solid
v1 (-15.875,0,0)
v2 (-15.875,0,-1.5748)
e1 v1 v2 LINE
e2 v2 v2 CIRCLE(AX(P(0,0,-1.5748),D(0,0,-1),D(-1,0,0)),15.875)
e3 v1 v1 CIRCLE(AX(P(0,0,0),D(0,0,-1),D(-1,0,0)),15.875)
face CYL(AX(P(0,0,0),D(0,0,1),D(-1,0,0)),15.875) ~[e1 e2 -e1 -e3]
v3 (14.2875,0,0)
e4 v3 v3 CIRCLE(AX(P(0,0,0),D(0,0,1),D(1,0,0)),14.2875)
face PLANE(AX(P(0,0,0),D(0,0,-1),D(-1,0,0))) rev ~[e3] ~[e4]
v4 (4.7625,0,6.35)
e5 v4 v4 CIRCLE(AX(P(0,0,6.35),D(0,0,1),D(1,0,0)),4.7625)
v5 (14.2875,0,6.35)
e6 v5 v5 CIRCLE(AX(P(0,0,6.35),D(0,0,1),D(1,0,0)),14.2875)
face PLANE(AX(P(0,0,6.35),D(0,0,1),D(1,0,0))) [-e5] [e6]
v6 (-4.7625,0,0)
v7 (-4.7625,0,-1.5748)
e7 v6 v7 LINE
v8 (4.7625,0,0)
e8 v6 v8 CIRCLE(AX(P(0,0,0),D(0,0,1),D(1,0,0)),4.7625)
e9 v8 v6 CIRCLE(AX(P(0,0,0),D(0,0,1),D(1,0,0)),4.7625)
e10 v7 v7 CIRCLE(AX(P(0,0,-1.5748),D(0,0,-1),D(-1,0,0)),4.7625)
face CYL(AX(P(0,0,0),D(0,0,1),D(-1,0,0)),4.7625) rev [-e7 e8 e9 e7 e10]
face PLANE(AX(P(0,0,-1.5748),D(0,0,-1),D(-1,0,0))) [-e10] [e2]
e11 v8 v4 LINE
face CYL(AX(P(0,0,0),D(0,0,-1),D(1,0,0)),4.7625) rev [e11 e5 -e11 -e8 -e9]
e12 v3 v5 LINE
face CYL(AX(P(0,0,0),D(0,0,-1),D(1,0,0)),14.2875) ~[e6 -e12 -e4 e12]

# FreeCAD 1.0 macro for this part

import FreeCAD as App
import Part
import Sketcher

V = App.Vector
Q = App.Units.Quantity

doc = App.newDocument("Part")
body = doc.addObject("PartDesign::Body", "Body")

# Sketch on XY plane
sketch1 = body.newObject("Sketcher::SketchObject", "Sketch")
sketch1.AttachmentSupport = (doc.getObject("XY_Plane"), [""])
sketch1.MapMode = "FlatFace"
sketch1.addGeometry([
    Part.Circle(V(0, 0, 0), V(0, 0, 1), 14.3),
    Part.Circle(V(0, 0, 0), V(0, 0, 1), 4.8),
], False)
sketch1.addConstraint([
    Sketcher.Constraint("Coincident", 0, 3, -1, 1),
    Sketcher.Constraint("Coincident", 1, 3, -1, 1),
    Sketcher.Constraint("Diameter", 0, Q("1.125 in")),
    Sketcher.Constraint("Diameter", 1, Q("0.375 in")),
])
pad1 = body.newObject("PartDesign::Pad", "Pad")
pad1.Profile = sketch1
pad1.Length = Q("0.25 in")

# Sketch on XY plane
sketch2 = body.newObject("Sketcher::SketchObject", "Sketch001")
sketch2.AttachmentSupport = (doc.getObject("XY_Plane"), [""])
sketch2.MapMode = "FlatFace"
sketch2.addGeometry([
    Part.Circle(V(0, 0, 0), V(0, 0, 1), 15.9),
    Part.Circle(V(0, 0, 0), V(0, 0, 1), 4.8),
], False)
sketch2.addConstraint([
    Sketcher.Constraint("Coincident", 0, 3, -1, 1),
    Sketcher.Constraint("Coincident", 1, 3, -1, 1),
    Sketcher.Constraint("Diameter", 0, Q("1.25 in")),
    Sketcher.Constraint("Diameter", 1, Q("0.375 in")),
])
pad2 = body.newObject("PartDesign::Pad", "Pad001")
pad2.Profile = sketch2
pad2.Length = Q("0.062 in")
pad2.Reversed = True

doc.recompute()
